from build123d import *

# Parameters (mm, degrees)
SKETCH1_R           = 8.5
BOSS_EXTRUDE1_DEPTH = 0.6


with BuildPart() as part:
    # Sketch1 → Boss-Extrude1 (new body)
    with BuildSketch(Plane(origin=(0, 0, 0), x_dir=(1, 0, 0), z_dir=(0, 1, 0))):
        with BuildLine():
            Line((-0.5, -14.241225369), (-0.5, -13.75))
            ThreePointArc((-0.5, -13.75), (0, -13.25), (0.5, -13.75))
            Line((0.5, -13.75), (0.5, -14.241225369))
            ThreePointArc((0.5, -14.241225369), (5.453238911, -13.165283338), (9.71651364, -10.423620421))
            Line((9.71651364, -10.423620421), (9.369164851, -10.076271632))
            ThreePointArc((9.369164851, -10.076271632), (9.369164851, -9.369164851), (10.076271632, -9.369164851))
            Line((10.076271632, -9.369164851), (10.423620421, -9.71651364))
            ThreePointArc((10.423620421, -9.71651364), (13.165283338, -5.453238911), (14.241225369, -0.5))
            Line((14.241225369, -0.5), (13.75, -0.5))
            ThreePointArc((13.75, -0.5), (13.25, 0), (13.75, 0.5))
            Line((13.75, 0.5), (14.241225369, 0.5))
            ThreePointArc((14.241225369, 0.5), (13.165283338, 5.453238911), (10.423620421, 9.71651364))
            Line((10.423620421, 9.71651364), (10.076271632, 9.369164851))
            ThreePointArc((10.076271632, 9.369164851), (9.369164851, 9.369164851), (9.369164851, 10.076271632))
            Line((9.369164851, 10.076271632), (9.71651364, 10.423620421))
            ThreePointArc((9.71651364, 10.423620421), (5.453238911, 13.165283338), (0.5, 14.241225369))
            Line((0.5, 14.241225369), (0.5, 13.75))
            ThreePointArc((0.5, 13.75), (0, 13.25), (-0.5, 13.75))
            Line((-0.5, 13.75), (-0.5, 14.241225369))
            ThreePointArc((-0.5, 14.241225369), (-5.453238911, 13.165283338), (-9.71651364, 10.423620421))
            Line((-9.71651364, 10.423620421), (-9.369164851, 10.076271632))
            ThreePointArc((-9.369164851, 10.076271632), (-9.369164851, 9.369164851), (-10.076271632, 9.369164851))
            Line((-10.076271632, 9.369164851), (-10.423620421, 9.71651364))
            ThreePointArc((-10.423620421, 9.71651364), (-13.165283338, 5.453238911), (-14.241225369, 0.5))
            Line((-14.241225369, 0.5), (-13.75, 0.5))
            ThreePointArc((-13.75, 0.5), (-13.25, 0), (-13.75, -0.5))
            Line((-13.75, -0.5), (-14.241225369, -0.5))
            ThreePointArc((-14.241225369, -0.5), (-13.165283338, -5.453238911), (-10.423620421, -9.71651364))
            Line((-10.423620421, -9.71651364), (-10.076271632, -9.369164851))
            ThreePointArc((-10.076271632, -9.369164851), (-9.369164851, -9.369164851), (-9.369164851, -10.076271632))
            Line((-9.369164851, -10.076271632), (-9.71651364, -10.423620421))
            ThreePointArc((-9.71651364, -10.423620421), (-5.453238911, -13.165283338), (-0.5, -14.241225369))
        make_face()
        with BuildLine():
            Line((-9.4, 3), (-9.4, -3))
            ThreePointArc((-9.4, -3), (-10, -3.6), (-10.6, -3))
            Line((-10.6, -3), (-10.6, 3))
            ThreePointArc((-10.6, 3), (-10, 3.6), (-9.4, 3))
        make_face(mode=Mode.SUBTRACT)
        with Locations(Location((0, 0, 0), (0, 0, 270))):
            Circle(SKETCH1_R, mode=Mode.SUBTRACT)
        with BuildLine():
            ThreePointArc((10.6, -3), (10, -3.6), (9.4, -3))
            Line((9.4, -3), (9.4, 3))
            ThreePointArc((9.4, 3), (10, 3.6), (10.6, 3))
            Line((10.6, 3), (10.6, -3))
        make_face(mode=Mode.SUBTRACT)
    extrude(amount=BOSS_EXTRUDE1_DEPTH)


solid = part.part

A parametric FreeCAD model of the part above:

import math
import FreeCAD as App
import Part
import Sketcher
from FreeCAD import Vector
Q = App.Units.Quantity

doc = App.newDocument("Part")
params = doc.addObject("Spreadsheet::Sheet", "Params")
for row, (alias, value) in enumerate([
    ("sketch1_diameter", "17 mm"),
    ("sketch1_radius", "0.5 mm"),
    ("sketch1_radius2", "0.6 mm"),
    ("sketch1_height", "6 mm"),
    ("sketch1_radius3", "14.25 mm"),
    ("pad1_length", "0.6 mm"),
], start=1):
    params.set(f"A{row}", alias)
    params.set(f"B{row}", "=" + value)
    params.setAlias(f"B{row}", alias)

body = doc.addObject("PartDesign::Body", "Body")

# Sketch on XZ plane
sketch1 = body.newObject("Sketcher::SketchObject", "Sketch")
sketch1.AttachmentSupport = (doc.getObject("XZ_Plane"), [""])
sketch1.MapMode = "FlatFace"
sketch1.addGeometry([
    Part.LineSegment(Vector(-0.5, 14.241225, 0), Vector(-0.5, 13.75, 0)),  # 0
    Part.ArcOfCircle(Part.Circle(Vector(0, 13.75, 0), Vector(0, 0, 1), 0.5), math.radians(180), math.radians(360)),  # 1
    Part.LineSegment(Vector(0.5, 13.75, 0), Vector(0.5, 14.241225, 0)),  # 2
    Part.ArcOfCircle(Part.Circle(Vector(0, 0, 0), Vector(0, 0, 1), 14.25), math.radians(47.010791), math.radians(87.989209)),  # 3
    Part.LineSegment(Vector(9.716514, 10.42362, 0), Vector(9.369165, 10.076272, 0)),  # 4
    Part.ArcOfCircle(Part.Circle(Vector(9.722718, 9.722718, 0), Vector(0, 0, 1), 0.5), math.radians(135), math.radians(315)),  # 5
    Part.LineSegment(Vector(10.076272, 9.369165, 0), Vector(10.42362, 9.716514, 0)),  # 6
    Part.ArcOfCircle(Part.Circle(Vector(0, 0, 0), Vector(0, 0, 1), 14.25), math.radians(2.010791), math.radians(42.989209)),  # 7
    Part.LineSegment(Vector(14.241225, 0.5, 0), Vector(13.75, 0.5, 0)),  # 8
    Part.ArcOfCircle(Part.Circle(Vector(13.75, 0, 0), Vector(0, 0, 1), 0.5), math.radians(90), math.radians(270)),  # 9
    Part.LineSegment(Vector(13.75, -0.5, 0), Vector(14.241225, -0.5, 0)),  # 10
    Part.ArcOfCircle(Part.Circle(Vector(0, 0, 0), Vector(0, 0, 1), 14.25), math.radians(-42.989209), math.radians(-2.010791)),  # 11
    Part.LineSegment(Vector(10.42362, -9.716514, 0), Vector(10.076272, -9.369165, 0)),  # 12
    Part.ArcOfCircle(Part.Circle(Vector(9.722718, -9.722718, 0), Vector(0, 0, 1), 0.5), math.radians(45), math.radians(225)),  # 13
    Part.LineSegment(Vector(9.369165, -10.076272, 0), Vector(9.716514, -10.42362, 0)),  # 14
    Part.ArcOfCircle(Part.Circle(Vector(0, 0, 0), Vector(0, 0, 1), 14.25), math.radians(-87.989209), math.radians(-47.010791)),  # 15
    Part.LineSegment(Vector(0.5, -14.241225, 0), Vector(0.5, -13.75, 0)),  # 16
    Part.ArcOfCircle(Part.Circle(Vector(0, -13.75, 0), Vector(0, 0, 1), 0.5), math.radians(0), math.radians(180)),  # 17
    Part.LineSegment(Vector(-0.5, -13.75, 0), Vector(-0.5, -14.241225, 0)),  # 18
    Part.ArcOfCircle(Part.Circle(Vector(0, 0, 0), Vector(0, 0, 1), 14.25), math.radians(-132.989209), math.radians(-92.010791)),  # 19
    Part.LineSegment(Vector(-9.716514, -10.42362, 0), Vector(-9.369165, -10.076272, 0)),  # 20
    Part.ArcOfCircle(Part.Circle(Vector(-9.722718, -9.722718, 0), Vector(0, 0, 1), 0.5), math.radians(-45), math.radians(135)),  # 21
    Part.LineSegment(Vector(-10.076272, -9.369165, 0), Vector(-10.42362, -9.716514, 0)),  # 22
    Part.ArcOfCircle(Part.Circle(Vector(0, 0, 0), Vector(0, 0, 1), 14.25), math.radians(-177.989209), math.radians(-137.010791)),  # 23
    Part.LineSegment(Vector(-14.241225, -0.5, 0), Vector(-13.75, -0.5, 0)),  # 24
    Part.ArcOfCircle(Part.Circle(Vector(-13.75, 0, 0), Vector(0, 0, 1), 0.5), math.radians(-90), math.radians(90)),  # 25
    Part.LineSegment(Vector(-13.75, 0.5, 0), Vector(-14.241225, 0.5, 0)),  # 26
    Part.ArcOfCircle(Part.Circle(Vector(0, 0, 0), Vector(0, 0, 1), 14.25), math.radians(137.010791), math.radians(177.989209)),  # 27
    Part.LineSegment(Vector(-10.42362, 9.716514, 0), Vector(-10.076272, 9.369165, 0)),  # 28
    Part.ArcOfCircle(Part.Circle(Vector(-9.722718, 9.722718, 0), Vector(0, 0, 1), 0.5), math.radians(-135), math.radians(45)),  # 29
    Part.LineSegment(Vector(-9.369165, 10.076272, 0), Vector(-9.716514, 10.42362, 0)),  # 30
    Part.ArcOfCircle(Part.Circle(Vector(0, 0, 0), Vector(0, 0, 1), 14.25), math.radians(92.010791), math.radians(132.989209)),  # 31
    Part.ArcOfCircle(Part.Circle(Vector(-10, -3, 0), Vector(0, 0, 1), 0.6), math.radians(180), math.radians(360)),  # 32
    Part.LineSegment(Vector(-9.4, -3, 0), Vector(-9.4, 3, 0)),  # 33
    Part.ArcOfCircle(Part.Circle(Vector(-10, 3, 0), Vector(0, 0, 1), 0.6), math.radians(0), math.radians(180)),  # 34
    Part.LineSegment(Vector(-10.6, 3, 0), Vector(-10.6, -3, 0)),  # 35
    Part.Circle(Vector(0, 0, 0), Vector(0, 0, 1), 8.5),  # 36
    Part.LineSegment(Vector(10.6, -3, 0), Vector(10.6, 3, 0)),  # 37
    Part.ArcOfCircle(Part.Circle(Vector(10, 3, 0), Vector(0, 0, 1), 0.6), math.radians(0), math.radians(180)),  # 38
    Part.LineSegment(Vector(9.4, 3, 0), Vector(9.4, -3, 0)),  # 39
    Part.ArcOfCircle(Part.Circle(Vector(10, -3, 0), Vector(0, 0, 1), 0.6), math.radians(180), math.radians(360)),  # 40
], False)
sketch1.addConstraint([
    Sketcher.Constraint("Tangent", 0, 2, 1, 1),
    Sketcher.Constraint("Tangent", 1, 2, 2, 1),
    Sketcher.Constraint("Coincident", 2, 2, 3, 2),
    Sketcher.Constraint("Coincident", 3, 1, 4, 1),
    Sketcher.Constraint("Tangent", 4, 2, 5, 1),
    Sketcher.Constraint("Tangent", 5, 2, 6, 1),
    Sketcher.Constraint("Coincident", 6, 2, 7, 2),
    Sketcher.Constraint("Coincident", 7, 1, 8, 1),
    Sketcher.Constraint("Tangent", 8, 2, 9, 1),
    Sketcher.Constraint("Tangent", 9, 2, 10, 1),
    Sketcher.Constraint("Coincident", 10, 2, 11, 2),
    Sketcher.Constraint("Coincident", 11, 1, 12, 1),
    Sketcher.Constraint("Tangent", 12, 2, 13, 1),
    Sketcher.Constraint("Tangent", 13, 2, 14, 1),
    Sketcher.Constraint("Coincident", 14, 2, 15, 2),
    Sketcher.Constraint("Coincident", 15, 1, 16, 1),
    Sketcher.Constraint("Tangent", 16, 2, 17, 1),
    Sketcher.Constraint("Tangent", 17, 2, 18, 1),
    Sketcher.Constraint("Coincident", 18, 2, 19, 2),
    Sketcher.Constraint("Coincident", 19, 1, 20, 1),
    Sketcher.Constraint("Tangent", 20, 2, 21, 1),
    Sketcher.Constraint("Tangent", 21, 2, 22, 1),
    Sketcher.Constraint("Coincident", 22, 2, 23, 2),
    Sketcher.Constraint("Coincident", 23, 1, 24, 1),
    Sketcher.Constraint("Tangent", 24, 2, 25, 1),
    Sketcher.Constraint("Tangent", 25, 2, 26, 1),
    Sketcher.Constraint("Coincident", 26, 2, 27, 2),
    Sketcher.Constraint("Coincident", 27, 1, 28, 1),
    Sketcher.Constraint("Tangent", 28, 2, 29, 1),
    Sketcher.Constraint("Tangent", 29, 2, 30, 1),
    Sketcher.Constraint("Coincident", 30, 2, 31, 2),
    Sketcher.Constraint("Coincident", 31, 1, 0, 1),
    Sketcher.Constraint("Tangent", 32, 2, 33, 1),
    Sketcher.Constraint("Tangent", 33, 2, 34, 1),
    Sketcher.Constraint("Tangent", 34, 2, 35, 1),
    Sketcher.Constraint("Tangent", 35, 2, 32, 1),
    Sketcher.Constraint("Tangent", 37, 2, 38, 1),
    Sketcher.Constraint("Tangent", 38, 2, 39, 1),
    Sketcher.Constraint("Tangent", 39, 2, 40, 1),
    Sketcher.Constraint("Tangent", 40, 2, 37, 1),
    Sketcher.Constraint("Vertical", 0),
    Sketcher.Constraint("Vertical", 2),
    Sketcher.Constraint("Horizontal", 8),
    Sketcher.Constraint("Horizontal", 10),
    Sketcher.Constraint("Vertical", 16),
    Sketcher.Constraint("Vertical", 18),
    Sketcher.Constraint("Horizontal", 24),
    Sketcher.Constraint("Horizontal", 26),
    Sketcher.Constraint("Vertical", 33),
    Sketcher.Constraint("Vertical", 35),
    Sketcher.Constraint("Vertical", 37),
    Sketcher.Constraint("Vertical", 39),
    Sketcher.Constraint("Coincident", 3, 3, -1, 1),
    Sketcher.Constraint("Coincident", 7, 3, -1, 1),
    Sketcher.Constraint("Coincident", 11, 3, -1, 1),
    Sketcher.Constraint("Coincident", 15, 3, -1, 1),
    Sketcher.Constraint("Coincident", 19, 3, -1, 1),
    Sketcher.Constraint("Coincident", 23, 3, -1, 1),
    Sketcher.Constraint("Coincident", 27, 3, -1, 1),
    Sketcher.Constraint("Coincident", 31, 3, -1, 1),
    Sketcher.Constraint("Coincident", 36, 3, -1, 1),
    Sketcher.Constraint("Equal", 1, 5),
    Sketcher.Constraint("Equal", 3, 7),
    Sketcher.Constraint("Equal", 5, 9),
    Sketcher.Constraint("Equal", 7, 11),
    Sketcher.Constraint("Equal", 9, 13),
    Sketcher.Constraint("Equal", 11, 15),
    Sketcher.Constraint("Equal", 13, 17),
    Sketcher.Constraint("Equal", 15, 19),
    Sketcher.Constraint("Equal", 17, 21),
    Sketcher.Constraint("Equal", 19, 23),
    Sketcher.Constraint("Equal", 21, 25),
    Sketcher.Constraint("Equal", 23, 27),
    Sketcher.Constraint("Equal", 25, 29),
    Sketcher.Constraint("Equal", 27, 31),
    Sketcher.Constraint("Equal", 34, 38),
    Sketcher.Constraint("Symmetric", 1, 3, 17, 3, -1, 1),
    Sketcher.Constraint("Symmetric", 5, 3, 21, 3, -1, 1),
    Sketcher.Constraint("Symmetric", 9, 3, 25, 3, -1, 1),
    Sketcher.Constraint("Symmetric", 13, 3, 29, 3, -1, 1),
    Sketcher.Constraint("Symmetric", 32, 3, 38, 3, -1, 1),
    Sketcher.Constraint("Symmetric", 13, 3, 21, 3, -2),
    Sketcher.Constraint("PointOnObject", 1, 3, -2),
    Sketcher.Constraint("PointOnObject", 9, 3, -1),
    Sketcher.Constraint("Parallel", 4, 6),
    Sketcher.Constraint("Perpendicular", 6, 12),
    Sketcher.Constraint("Parallel", 12, 14),
    Sketcher.Constraint("Perpendicular", 14, 20),
    Sketcher.Constraint("Parallel", 20, 22),
    Sketcher.Constraint("Perpendicular", 22, 28),
    Sketcher.Constraint("Parallel", 28, 30),
    Sketcher.Constraint("Horizontal", 34, 3, 38, 3),
    Sketcher.Constraint("Horizontal", 32, 3, 40, 3),
    Sketcher.Constraint("Horizontal", 14, 2, 19, 1),
    Sketcher.Constraint("Equal", 26, 0),
    Sketcher.Constraint("Equal", 4, 6),
    Sketcher.Constraint("Diameter", 36, Q("17 mm")),
    Sketcher.Constraint("Radius", 1, Q("0.5 mm")),
    Sketcher.Constraint("Radius", 32, Q("0.6 mm")),
    Sketcher.Constraint("DistanceY", 33, 1, 33, 2, Q("6 mm")),
    Sketcher.Constraint("Radius", 3, Q("14.25 mm")),
    Sketcher.Constraint("DistanceX", 32, 3, -1, 1, Q("10 mm")),
    Sketcher.Constraint("DistanceY", -1, 1, 1, 3, Q("13.75 mm")),
    Sketcher.Constraint("DistanceX", -1, 1, 5, 3, Q("9.722718 mm")),
])
sketch1.setExpression("Constraints[96]", "Params.sketch1_diameter")
sketch1.setExpression("Constraints[97]", "Params.sketch1_radius")
sketch1.setExpression("Constraints[98]", "Params.sketch1_radius2")
sketch1.setExpression("Constraints[99]", "Params.sketch1_height")
sketch1.setExpression("Constraints[100]", "Params.sketch1_radius3")
pad1 = body.newObject("PartDesign::Pad", "Pad")
pad1.Profile = sketch1
pad1.setExpression("Length", "Params.pad1_length")
pad1.Reversed = True

doc.recompute()
